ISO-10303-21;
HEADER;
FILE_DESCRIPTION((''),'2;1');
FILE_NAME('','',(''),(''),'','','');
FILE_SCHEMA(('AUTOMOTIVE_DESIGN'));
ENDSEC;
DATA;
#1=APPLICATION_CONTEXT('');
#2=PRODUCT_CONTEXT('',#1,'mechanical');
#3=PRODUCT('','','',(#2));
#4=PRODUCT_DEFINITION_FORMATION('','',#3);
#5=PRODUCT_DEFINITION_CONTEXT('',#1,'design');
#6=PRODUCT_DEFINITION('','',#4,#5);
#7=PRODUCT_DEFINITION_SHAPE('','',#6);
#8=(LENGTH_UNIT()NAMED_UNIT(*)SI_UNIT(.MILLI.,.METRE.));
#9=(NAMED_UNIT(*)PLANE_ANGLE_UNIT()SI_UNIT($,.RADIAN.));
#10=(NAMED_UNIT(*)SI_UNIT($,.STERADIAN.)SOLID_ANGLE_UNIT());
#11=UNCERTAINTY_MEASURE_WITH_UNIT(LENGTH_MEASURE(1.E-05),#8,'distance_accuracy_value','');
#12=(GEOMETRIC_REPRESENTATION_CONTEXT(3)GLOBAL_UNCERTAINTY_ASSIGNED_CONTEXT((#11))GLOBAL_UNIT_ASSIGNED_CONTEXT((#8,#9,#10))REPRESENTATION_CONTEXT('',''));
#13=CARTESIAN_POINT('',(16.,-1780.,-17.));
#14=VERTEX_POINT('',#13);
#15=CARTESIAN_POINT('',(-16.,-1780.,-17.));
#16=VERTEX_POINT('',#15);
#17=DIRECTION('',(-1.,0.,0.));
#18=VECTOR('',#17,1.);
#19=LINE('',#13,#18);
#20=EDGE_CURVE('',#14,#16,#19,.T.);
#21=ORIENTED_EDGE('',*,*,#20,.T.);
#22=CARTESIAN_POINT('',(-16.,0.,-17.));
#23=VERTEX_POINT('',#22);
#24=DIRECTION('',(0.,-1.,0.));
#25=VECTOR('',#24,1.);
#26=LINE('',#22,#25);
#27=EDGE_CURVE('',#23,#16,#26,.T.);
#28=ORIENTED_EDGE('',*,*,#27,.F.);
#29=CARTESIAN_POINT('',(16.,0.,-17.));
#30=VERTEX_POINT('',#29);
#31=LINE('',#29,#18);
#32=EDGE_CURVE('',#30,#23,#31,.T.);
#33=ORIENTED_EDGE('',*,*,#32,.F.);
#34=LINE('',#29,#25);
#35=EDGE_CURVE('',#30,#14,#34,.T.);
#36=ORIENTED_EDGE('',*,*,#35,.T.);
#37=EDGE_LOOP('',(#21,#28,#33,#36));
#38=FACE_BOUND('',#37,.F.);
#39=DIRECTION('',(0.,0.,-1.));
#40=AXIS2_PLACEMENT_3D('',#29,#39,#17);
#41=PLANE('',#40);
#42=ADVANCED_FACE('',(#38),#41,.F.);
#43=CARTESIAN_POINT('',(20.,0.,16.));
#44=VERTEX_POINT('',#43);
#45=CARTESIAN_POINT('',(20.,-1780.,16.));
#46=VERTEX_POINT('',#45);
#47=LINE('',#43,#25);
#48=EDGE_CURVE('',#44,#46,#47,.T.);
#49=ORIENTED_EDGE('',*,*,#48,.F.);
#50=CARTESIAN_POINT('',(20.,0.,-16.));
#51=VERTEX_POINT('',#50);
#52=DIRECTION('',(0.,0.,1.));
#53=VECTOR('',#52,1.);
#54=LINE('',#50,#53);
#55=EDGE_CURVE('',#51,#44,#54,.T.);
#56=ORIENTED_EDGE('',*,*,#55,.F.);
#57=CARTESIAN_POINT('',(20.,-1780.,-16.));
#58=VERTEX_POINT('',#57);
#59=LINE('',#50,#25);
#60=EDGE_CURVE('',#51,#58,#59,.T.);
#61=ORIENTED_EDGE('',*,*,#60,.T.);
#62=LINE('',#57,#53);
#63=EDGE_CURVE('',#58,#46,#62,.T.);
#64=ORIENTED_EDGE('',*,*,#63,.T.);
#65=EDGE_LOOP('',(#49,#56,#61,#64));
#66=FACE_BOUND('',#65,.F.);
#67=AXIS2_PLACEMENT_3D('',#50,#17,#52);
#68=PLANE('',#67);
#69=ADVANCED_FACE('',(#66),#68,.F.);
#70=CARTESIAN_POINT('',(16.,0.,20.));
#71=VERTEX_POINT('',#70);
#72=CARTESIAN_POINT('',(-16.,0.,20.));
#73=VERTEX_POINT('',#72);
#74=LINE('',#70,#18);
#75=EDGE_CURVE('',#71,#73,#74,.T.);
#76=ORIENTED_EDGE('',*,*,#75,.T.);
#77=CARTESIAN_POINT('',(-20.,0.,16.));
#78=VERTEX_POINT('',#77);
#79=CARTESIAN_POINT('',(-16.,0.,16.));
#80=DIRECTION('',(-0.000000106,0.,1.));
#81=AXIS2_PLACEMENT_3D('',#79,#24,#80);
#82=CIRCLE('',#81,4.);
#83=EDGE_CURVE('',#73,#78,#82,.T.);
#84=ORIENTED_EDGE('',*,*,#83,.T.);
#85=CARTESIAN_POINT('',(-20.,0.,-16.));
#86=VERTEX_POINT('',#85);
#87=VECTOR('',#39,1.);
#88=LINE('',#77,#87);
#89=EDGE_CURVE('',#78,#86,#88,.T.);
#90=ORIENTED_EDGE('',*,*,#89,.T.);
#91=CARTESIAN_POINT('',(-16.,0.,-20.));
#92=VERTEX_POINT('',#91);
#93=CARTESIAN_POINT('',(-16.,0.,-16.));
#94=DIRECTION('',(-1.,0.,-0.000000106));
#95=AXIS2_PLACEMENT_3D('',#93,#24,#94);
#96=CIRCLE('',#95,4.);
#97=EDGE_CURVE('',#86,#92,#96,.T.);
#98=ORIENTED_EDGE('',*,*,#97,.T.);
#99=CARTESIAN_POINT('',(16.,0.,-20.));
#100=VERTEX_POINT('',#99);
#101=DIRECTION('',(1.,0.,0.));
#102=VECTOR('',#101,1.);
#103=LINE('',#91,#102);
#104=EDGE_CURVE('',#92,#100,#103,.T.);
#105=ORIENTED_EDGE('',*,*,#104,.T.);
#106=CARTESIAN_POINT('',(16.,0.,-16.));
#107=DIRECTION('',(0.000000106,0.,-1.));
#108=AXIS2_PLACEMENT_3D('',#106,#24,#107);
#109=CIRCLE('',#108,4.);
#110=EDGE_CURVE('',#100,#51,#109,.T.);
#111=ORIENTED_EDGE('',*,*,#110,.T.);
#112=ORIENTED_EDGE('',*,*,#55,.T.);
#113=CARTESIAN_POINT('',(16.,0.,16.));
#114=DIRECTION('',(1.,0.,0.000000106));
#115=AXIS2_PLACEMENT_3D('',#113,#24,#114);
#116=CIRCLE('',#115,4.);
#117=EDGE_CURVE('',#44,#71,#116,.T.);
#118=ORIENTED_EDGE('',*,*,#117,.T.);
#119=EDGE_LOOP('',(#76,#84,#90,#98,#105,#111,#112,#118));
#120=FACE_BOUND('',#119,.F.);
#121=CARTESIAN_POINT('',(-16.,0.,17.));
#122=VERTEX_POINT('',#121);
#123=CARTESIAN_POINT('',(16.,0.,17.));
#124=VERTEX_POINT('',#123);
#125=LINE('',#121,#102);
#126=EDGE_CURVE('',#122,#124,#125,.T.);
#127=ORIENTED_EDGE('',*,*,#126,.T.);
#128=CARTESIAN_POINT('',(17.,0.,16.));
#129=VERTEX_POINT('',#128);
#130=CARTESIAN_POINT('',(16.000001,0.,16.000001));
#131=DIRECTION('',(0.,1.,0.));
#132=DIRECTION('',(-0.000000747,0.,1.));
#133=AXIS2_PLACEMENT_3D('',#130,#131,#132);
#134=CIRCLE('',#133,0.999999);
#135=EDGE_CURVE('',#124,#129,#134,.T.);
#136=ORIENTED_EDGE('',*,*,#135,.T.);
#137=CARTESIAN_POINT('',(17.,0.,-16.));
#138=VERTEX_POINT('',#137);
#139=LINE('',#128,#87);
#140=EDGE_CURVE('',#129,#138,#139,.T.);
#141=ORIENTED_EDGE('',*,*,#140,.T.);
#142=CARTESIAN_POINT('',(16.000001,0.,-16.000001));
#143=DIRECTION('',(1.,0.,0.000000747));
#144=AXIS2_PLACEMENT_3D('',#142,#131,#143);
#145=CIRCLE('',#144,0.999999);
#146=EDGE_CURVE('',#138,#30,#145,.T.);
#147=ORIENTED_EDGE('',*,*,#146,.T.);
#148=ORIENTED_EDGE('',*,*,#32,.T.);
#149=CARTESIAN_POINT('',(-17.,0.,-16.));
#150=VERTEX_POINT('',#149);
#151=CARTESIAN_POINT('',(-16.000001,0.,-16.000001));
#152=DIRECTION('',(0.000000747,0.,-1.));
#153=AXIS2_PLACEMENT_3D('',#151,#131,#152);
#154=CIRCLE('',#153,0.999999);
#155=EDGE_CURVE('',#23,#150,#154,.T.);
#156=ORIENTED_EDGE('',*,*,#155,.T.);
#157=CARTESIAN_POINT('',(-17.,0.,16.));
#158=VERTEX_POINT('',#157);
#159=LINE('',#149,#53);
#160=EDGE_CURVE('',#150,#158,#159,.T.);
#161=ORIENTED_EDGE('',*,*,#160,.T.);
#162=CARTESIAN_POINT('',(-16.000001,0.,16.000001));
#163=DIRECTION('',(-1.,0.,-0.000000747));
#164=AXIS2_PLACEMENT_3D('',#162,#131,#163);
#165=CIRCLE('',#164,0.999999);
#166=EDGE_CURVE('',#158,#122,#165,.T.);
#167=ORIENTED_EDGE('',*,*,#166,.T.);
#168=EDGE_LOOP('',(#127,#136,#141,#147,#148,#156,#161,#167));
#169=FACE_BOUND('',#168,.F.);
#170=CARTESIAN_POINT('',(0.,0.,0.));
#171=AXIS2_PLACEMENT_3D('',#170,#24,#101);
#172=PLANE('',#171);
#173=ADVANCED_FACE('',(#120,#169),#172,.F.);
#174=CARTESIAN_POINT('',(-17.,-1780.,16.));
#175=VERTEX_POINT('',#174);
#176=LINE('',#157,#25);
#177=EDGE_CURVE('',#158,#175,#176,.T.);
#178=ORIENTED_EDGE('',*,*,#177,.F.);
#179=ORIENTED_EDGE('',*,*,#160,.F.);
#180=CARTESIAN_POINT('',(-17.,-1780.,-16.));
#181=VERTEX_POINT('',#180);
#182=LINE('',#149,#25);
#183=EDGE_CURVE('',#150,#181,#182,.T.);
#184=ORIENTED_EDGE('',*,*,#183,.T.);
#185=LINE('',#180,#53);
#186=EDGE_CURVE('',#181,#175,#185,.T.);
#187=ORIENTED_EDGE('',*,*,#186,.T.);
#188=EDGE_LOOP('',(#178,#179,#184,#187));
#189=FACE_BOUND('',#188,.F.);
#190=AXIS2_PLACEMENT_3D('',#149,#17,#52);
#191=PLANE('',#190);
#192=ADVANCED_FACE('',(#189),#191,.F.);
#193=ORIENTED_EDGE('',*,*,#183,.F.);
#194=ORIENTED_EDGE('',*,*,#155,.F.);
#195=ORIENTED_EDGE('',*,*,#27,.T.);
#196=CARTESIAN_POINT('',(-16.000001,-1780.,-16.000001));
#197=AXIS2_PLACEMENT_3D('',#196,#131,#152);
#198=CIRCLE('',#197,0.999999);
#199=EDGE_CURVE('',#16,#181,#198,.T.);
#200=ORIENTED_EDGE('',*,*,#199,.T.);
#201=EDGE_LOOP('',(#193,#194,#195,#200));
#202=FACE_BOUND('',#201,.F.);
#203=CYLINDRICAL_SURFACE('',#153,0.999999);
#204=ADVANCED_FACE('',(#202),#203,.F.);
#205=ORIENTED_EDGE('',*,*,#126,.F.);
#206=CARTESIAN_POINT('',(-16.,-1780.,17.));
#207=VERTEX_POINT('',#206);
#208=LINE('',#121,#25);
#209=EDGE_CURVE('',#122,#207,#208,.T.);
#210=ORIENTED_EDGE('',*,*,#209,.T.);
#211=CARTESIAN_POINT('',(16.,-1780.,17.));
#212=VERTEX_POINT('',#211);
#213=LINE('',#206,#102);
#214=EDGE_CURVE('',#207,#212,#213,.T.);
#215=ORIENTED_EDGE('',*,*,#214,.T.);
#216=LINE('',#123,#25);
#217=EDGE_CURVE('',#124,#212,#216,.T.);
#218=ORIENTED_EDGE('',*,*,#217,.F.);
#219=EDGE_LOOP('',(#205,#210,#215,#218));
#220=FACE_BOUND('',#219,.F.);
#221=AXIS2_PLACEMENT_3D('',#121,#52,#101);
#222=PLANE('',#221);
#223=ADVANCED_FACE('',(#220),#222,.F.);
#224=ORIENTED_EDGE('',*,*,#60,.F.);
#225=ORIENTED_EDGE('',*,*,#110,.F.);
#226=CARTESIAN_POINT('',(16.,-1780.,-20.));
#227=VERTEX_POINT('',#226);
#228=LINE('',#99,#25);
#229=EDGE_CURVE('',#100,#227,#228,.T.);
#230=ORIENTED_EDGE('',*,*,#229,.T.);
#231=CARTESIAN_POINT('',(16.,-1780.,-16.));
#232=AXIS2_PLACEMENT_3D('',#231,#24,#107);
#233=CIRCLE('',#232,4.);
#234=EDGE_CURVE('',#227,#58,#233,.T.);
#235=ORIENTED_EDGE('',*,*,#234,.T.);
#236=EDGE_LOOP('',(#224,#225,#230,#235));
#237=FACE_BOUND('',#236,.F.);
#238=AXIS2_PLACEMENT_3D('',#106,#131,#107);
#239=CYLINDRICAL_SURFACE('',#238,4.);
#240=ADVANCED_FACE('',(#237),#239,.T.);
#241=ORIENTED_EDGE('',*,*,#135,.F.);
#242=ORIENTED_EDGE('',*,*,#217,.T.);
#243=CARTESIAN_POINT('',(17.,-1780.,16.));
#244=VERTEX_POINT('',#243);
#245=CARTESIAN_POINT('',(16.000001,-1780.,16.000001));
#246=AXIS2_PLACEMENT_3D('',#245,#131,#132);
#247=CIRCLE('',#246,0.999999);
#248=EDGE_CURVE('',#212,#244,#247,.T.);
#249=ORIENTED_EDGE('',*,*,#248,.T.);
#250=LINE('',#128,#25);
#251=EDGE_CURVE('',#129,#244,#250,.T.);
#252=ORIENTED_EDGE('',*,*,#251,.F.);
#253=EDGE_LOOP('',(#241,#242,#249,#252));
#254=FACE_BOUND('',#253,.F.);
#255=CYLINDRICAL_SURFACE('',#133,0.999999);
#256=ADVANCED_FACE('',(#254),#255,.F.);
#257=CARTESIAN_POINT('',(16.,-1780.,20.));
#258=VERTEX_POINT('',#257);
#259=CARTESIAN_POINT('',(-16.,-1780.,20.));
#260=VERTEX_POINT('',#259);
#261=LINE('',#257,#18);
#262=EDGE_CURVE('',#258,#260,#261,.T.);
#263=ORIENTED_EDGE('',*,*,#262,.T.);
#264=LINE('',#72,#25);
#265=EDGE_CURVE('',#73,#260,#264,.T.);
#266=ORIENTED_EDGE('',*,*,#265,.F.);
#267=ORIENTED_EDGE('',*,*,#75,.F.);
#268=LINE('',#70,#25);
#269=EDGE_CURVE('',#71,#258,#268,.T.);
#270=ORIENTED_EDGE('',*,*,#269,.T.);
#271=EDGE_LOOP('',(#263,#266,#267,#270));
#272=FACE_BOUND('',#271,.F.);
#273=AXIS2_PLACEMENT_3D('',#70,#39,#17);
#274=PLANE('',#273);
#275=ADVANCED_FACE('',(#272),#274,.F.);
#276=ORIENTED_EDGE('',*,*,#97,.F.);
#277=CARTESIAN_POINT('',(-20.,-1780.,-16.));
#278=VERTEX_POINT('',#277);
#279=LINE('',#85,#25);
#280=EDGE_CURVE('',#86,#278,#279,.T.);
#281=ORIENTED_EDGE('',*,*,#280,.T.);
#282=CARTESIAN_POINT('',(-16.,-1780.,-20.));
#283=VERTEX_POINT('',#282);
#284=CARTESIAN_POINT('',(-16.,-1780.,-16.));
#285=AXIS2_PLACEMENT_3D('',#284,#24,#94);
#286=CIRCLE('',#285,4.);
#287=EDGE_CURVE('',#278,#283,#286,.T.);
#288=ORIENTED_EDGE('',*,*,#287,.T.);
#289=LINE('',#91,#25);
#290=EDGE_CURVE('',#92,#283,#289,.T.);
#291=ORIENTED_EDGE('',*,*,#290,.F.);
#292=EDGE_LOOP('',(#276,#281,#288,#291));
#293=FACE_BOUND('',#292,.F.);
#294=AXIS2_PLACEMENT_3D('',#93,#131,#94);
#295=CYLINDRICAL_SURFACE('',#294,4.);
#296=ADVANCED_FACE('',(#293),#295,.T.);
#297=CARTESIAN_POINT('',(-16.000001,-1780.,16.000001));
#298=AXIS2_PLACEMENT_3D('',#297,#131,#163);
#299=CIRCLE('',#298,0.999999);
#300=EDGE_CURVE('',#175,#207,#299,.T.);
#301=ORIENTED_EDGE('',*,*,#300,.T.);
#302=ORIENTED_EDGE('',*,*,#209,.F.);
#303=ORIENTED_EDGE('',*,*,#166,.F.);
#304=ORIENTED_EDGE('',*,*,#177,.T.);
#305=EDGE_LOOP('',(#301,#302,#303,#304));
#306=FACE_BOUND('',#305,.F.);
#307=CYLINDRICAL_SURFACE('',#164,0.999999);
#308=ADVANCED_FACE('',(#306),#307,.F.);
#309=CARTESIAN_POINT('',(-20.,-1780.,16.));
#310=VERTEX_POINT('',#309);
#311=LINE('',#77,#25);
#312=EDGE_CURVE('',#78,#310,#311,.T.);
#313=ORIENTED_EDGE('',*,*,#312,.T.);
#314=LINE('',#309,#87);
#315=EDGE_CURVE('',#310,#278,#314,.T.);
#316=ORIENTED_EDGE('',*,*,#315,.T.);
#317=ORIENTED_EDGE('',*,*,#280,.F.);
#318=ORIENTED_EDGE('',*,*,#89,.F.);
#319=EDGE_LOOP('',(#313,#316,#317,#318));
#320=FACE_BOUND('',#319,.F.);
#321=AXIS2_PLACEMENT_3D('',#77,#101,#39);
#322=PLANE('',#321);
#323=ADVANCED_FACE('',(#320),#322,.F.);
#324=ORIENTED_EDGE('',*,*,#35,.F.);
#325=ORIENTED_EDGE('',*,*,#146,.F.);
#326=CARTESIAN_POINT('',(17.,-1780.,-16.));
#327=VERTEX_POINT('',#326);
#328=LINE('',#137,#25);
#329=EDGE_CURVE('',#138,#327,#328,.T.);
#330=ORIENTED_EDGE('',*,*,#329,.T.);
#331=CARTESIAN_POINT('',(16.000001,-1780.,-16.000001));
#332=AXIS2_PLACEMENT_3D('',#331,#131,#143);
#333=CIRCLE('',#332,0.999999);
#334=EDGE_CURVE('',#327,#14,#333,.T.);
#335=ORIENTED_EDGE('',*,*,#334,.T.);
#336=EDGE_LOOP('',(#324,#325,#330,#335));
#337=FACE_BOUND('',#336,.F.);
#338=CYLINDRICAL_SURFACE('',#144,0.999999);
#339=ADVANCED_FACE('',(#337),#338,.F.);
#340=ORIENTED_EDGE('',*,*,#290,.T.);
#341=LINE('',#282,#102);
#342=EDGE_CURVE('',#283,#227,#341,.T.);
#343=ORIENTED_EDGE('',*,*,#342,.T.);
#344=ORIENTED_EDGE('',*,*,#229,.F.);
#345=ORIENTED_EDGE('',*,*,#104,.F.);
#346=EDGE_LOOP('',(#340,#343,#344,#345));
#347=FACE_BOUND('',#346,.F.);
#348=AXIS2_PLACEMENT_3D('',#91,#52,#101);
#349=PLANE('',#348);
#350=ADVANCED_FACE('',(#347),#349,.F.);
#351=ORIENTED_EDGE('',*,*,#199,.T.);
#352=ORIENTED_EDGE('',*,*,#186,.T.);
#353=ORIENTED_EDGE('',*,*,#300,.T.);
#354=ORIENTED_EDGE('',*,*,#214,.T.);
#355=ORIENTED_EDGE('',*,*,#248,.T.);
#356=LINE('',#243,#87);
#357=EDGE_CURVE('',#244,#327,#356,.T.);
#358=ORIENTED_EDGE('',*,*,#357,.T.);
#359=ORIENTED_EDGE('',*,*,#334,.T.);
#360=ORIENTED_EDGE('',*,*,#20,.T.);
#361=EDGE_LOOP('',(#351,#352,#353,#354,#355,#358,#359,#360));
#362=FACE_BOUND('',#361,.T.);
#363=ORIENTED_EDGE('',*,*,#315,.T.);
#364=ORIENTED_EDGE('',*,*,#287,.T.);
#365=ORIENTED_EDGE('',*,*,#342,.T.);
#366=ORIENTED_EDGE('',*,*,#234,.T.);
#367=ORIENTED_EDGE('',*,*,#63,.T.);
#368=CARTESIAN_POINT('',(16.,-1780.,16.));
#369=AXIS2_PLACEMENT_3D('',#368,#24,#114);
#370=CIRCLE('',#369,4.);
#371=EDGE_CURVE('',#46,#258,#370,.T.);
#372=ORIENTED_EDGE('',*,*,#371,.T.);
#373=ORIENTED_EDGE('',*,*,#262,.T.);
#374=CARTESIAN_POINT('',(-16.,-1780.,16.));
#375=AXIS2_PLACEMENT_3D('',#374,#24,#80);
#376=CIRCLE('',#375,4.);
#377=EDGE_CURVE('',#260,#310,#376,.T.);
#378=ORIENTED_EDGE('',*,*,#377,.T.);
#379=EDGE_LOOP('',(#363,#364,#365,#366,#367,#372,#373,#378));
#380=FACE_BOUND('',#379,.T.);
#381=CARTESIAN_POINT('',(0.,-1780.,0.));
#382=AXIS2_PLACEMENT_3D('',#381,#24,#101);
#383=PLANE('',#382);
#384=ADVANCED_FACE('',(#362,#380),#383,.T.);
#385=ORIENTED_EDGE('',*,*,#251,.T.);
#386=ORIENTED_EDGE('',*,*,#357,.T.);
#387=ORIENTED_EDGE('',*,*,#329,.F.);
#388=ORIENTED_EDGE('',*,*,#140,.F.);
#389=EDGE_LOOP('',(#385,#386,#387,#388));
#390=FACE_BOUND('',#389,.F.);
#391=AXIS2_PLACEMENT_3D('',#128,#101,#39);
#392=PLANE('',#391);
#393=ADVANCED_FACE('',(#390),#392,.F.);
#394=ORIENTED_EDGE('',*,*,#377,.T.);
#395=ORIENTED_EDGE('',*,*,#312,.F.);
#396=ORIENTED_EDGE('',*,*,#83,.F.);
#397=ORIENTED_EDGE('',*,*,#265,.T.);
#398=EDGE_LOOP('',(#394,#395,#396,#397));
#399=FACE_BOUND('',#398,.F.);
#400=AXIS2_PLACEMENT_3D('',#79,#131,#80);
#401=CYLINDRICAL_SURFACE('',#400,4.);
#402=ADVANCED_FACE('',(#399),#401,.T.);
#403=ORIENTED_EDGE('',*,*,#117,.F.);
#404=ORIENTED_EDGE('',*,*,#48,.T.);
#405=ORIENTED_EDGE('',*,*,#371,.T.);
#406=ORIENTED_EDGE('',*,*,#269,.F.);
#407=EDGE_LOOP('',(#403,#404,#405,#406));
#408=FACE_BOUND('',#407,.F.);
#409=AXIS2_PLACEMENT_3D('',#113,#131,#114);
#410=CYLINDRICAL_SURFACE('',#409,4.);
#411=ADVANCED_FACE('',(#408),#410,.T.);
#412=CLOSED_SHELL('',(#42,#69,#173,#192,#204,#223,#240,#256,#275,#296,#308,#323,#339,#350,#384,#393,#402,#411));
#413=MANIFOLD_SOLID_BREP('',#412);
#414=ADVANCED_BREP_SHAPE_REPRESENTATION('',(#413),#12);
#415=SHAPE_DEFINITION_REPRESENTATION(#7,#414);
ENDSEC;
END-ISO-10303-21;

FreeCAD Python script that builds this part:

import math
import FreeCAD as App
import Part
import Sketcher

V = App.Vector
Q = App.Units.Quantity

doc = App.newDocument("Part")
body = doc.addObject("PartDesign::Body", "Body")

# Sketch on XZ plane
sketch1 = body.newObject("Sketcher::SketchObject", "Sketch")
sketch1.AttachmentSupport = (doc.getObject("XZ_Plane"), [""])
sketch1.MapMode = "FlatFace"
sketch1.addGeometry([
    Part.ArcOfCircle(Part.Circle(V(16, 16, 0), V(0, 0, 1), 4), math.radians(0), math.radians(90)),  # 0
    Part.LineSegment(V(16, 20, 0), V(-16, 20, 0)),  # 1
    Part.ArcOfCircle(Part.Circle(V(-16, 16, 0), V(0, 0, 1), 4), math.radians(90), math.radians(180)),  # 2
    Part.LineSegment(V(-20, 16, 0), V(-20, -16, 0)),  # 3
    Part.ArcOfCircle(Part.Circle(V(-16, -16, 0), V(0, 0, 1), 4), math.radians(-180), math.radians(-90)),  # 4
    Part.LineSegment(V(-16, -20, 0), V(16, -20, 0)),  # 5
    Part.ArcOfCircle(Part.Circle(V(16, -16, 0), V(0, 0, 1), 4), math.radians(-90), math.radians(0)),  # 6
    Part.LineSegment(V(20, -16, 0), V(20, 16, 0)),  # 7
    Part.ArcOfCircle(Part.Circle(V(-16, 16, 0), V(0, 0, 1), 1), math.radians(90), math.radians(180)),  # 8
    Part.LineSegment(V(-16, 17, 0), V(16, 17, 0)),  # 9
    Part.ArcOfCircle(Part.Circle(V(16, 16, 0), V(0, 0, 1), 1), math.radians(0), math.radians(90)),  # 10
    Part.LineSegment(V(17, 16, 0), V(17, -16, 0)),  # 11
    Part.ArcOfCircle(Part.Circle(V(16, -16, 0), V(0, 0, 1), 1), math.radians(-90), math.radians(0)),  # 12
    Part.LineSegment(V(16, -17, 0), V(-16, -17, 0)),  # 13
    Part.ArcOfCircle(Part.Circle(V(-16, -16, 0), V(0, 0, 1), 1), math.radians(180), math.radians(270)),  # 14
    Part.LineSegment(V(-17, -16, 0), V(-17, 16, 0)),  # 15
], False)
sketch1.addConstraint([
    Sketcher.Constraint("Tangent", 0, 2, 1, 1),
    Sketcher.Constraint("Tangent", 1, 2, 2, 1),
    Sketcher.Constraint("Tangent", 2, 2, 3, 1),
    Sketcher.Constraint("Tangent", 3, 2, 4, 1),
    Sketcher.Constraint("Tangent", 4, 2, 5, 1),
    Sketcher.Constraint("Tangent", 5, 2, 6, 1),
    Sketcher.Constraint("Tangent", 6, 2, 7, 1),
    Sketcher.Constraint("Tangent", 7, 2, 0, 1),
    Sketcher.Constraint("Tangent", 8, 1, 9, 1),
    Sketcher.Constraint("Tangent", 9, 2, 10, 2),
    Sketcher.Constraint("Tangent", 10, 1, 11, 1),
    Sketcher.Constraint("Tangent", 11, 2, 12, 2),
    Sketcher.Constraint("Tangent", 12, 1, 13, 1),
    Sketcher.Constraint("Tangent", 13, 2, 14, 2),
    Sketcher.Constraint("Tangent", 14, 1, 15, 1),
    Sketcher.Constraint("Tangent", 15, 2, 8, 2),
    Sketcher.Constraint("Horizontal", 1),
    Sketcher.Constraint("Vertical", 3),
    Sketcher.Constraint("Horizontal", 5),
    Sketcher.Constraint("Vertical", 7),
    Sketcher.Constraint("Horizontal", 9),
    Sketcher.Constraint("Vertical", 11),
    Sketcher.Constraint("Horizontal", 13),
    Sketcher.Constraint("Vertical", 15),
    Sketcher.Constraint("Coincident", 8, 3, 2, 3),
    Sketcher.Constraint("Coincident", 10, 3, 0, 3),
    Sketcher.Constraint("Coincident", 12, 3, 6, 3),
    Sketcher.Constraint("Equal", 0, 2),
    Sketcher.Constraint("Equal", 2, 4),
    Sketcher.Constraint("Equal", 4, 6),
    Sketcher.Constraint("Equal", 12, 14),
    Sketcher.Constraint("Symmetric", 0, 3, 4, 3, -1, 1),
    Sketcher.Constraint("Equal", 13, 3),
    Sketcher.Constraint("Radius", 0, Q("4 mm")),
    Sketcher.Constraint("Radius", 8, Q("0.999999 mm")),
    Sketcher.Constraint("DistanceX", 1, 2, 1, 1, Q("32 mm")),
])
pad1 = body.newObject("PartDesign::Pad", "Pad")
pad1.Profile = sketch1
pad1.Length = 1780

doc.recompute()
